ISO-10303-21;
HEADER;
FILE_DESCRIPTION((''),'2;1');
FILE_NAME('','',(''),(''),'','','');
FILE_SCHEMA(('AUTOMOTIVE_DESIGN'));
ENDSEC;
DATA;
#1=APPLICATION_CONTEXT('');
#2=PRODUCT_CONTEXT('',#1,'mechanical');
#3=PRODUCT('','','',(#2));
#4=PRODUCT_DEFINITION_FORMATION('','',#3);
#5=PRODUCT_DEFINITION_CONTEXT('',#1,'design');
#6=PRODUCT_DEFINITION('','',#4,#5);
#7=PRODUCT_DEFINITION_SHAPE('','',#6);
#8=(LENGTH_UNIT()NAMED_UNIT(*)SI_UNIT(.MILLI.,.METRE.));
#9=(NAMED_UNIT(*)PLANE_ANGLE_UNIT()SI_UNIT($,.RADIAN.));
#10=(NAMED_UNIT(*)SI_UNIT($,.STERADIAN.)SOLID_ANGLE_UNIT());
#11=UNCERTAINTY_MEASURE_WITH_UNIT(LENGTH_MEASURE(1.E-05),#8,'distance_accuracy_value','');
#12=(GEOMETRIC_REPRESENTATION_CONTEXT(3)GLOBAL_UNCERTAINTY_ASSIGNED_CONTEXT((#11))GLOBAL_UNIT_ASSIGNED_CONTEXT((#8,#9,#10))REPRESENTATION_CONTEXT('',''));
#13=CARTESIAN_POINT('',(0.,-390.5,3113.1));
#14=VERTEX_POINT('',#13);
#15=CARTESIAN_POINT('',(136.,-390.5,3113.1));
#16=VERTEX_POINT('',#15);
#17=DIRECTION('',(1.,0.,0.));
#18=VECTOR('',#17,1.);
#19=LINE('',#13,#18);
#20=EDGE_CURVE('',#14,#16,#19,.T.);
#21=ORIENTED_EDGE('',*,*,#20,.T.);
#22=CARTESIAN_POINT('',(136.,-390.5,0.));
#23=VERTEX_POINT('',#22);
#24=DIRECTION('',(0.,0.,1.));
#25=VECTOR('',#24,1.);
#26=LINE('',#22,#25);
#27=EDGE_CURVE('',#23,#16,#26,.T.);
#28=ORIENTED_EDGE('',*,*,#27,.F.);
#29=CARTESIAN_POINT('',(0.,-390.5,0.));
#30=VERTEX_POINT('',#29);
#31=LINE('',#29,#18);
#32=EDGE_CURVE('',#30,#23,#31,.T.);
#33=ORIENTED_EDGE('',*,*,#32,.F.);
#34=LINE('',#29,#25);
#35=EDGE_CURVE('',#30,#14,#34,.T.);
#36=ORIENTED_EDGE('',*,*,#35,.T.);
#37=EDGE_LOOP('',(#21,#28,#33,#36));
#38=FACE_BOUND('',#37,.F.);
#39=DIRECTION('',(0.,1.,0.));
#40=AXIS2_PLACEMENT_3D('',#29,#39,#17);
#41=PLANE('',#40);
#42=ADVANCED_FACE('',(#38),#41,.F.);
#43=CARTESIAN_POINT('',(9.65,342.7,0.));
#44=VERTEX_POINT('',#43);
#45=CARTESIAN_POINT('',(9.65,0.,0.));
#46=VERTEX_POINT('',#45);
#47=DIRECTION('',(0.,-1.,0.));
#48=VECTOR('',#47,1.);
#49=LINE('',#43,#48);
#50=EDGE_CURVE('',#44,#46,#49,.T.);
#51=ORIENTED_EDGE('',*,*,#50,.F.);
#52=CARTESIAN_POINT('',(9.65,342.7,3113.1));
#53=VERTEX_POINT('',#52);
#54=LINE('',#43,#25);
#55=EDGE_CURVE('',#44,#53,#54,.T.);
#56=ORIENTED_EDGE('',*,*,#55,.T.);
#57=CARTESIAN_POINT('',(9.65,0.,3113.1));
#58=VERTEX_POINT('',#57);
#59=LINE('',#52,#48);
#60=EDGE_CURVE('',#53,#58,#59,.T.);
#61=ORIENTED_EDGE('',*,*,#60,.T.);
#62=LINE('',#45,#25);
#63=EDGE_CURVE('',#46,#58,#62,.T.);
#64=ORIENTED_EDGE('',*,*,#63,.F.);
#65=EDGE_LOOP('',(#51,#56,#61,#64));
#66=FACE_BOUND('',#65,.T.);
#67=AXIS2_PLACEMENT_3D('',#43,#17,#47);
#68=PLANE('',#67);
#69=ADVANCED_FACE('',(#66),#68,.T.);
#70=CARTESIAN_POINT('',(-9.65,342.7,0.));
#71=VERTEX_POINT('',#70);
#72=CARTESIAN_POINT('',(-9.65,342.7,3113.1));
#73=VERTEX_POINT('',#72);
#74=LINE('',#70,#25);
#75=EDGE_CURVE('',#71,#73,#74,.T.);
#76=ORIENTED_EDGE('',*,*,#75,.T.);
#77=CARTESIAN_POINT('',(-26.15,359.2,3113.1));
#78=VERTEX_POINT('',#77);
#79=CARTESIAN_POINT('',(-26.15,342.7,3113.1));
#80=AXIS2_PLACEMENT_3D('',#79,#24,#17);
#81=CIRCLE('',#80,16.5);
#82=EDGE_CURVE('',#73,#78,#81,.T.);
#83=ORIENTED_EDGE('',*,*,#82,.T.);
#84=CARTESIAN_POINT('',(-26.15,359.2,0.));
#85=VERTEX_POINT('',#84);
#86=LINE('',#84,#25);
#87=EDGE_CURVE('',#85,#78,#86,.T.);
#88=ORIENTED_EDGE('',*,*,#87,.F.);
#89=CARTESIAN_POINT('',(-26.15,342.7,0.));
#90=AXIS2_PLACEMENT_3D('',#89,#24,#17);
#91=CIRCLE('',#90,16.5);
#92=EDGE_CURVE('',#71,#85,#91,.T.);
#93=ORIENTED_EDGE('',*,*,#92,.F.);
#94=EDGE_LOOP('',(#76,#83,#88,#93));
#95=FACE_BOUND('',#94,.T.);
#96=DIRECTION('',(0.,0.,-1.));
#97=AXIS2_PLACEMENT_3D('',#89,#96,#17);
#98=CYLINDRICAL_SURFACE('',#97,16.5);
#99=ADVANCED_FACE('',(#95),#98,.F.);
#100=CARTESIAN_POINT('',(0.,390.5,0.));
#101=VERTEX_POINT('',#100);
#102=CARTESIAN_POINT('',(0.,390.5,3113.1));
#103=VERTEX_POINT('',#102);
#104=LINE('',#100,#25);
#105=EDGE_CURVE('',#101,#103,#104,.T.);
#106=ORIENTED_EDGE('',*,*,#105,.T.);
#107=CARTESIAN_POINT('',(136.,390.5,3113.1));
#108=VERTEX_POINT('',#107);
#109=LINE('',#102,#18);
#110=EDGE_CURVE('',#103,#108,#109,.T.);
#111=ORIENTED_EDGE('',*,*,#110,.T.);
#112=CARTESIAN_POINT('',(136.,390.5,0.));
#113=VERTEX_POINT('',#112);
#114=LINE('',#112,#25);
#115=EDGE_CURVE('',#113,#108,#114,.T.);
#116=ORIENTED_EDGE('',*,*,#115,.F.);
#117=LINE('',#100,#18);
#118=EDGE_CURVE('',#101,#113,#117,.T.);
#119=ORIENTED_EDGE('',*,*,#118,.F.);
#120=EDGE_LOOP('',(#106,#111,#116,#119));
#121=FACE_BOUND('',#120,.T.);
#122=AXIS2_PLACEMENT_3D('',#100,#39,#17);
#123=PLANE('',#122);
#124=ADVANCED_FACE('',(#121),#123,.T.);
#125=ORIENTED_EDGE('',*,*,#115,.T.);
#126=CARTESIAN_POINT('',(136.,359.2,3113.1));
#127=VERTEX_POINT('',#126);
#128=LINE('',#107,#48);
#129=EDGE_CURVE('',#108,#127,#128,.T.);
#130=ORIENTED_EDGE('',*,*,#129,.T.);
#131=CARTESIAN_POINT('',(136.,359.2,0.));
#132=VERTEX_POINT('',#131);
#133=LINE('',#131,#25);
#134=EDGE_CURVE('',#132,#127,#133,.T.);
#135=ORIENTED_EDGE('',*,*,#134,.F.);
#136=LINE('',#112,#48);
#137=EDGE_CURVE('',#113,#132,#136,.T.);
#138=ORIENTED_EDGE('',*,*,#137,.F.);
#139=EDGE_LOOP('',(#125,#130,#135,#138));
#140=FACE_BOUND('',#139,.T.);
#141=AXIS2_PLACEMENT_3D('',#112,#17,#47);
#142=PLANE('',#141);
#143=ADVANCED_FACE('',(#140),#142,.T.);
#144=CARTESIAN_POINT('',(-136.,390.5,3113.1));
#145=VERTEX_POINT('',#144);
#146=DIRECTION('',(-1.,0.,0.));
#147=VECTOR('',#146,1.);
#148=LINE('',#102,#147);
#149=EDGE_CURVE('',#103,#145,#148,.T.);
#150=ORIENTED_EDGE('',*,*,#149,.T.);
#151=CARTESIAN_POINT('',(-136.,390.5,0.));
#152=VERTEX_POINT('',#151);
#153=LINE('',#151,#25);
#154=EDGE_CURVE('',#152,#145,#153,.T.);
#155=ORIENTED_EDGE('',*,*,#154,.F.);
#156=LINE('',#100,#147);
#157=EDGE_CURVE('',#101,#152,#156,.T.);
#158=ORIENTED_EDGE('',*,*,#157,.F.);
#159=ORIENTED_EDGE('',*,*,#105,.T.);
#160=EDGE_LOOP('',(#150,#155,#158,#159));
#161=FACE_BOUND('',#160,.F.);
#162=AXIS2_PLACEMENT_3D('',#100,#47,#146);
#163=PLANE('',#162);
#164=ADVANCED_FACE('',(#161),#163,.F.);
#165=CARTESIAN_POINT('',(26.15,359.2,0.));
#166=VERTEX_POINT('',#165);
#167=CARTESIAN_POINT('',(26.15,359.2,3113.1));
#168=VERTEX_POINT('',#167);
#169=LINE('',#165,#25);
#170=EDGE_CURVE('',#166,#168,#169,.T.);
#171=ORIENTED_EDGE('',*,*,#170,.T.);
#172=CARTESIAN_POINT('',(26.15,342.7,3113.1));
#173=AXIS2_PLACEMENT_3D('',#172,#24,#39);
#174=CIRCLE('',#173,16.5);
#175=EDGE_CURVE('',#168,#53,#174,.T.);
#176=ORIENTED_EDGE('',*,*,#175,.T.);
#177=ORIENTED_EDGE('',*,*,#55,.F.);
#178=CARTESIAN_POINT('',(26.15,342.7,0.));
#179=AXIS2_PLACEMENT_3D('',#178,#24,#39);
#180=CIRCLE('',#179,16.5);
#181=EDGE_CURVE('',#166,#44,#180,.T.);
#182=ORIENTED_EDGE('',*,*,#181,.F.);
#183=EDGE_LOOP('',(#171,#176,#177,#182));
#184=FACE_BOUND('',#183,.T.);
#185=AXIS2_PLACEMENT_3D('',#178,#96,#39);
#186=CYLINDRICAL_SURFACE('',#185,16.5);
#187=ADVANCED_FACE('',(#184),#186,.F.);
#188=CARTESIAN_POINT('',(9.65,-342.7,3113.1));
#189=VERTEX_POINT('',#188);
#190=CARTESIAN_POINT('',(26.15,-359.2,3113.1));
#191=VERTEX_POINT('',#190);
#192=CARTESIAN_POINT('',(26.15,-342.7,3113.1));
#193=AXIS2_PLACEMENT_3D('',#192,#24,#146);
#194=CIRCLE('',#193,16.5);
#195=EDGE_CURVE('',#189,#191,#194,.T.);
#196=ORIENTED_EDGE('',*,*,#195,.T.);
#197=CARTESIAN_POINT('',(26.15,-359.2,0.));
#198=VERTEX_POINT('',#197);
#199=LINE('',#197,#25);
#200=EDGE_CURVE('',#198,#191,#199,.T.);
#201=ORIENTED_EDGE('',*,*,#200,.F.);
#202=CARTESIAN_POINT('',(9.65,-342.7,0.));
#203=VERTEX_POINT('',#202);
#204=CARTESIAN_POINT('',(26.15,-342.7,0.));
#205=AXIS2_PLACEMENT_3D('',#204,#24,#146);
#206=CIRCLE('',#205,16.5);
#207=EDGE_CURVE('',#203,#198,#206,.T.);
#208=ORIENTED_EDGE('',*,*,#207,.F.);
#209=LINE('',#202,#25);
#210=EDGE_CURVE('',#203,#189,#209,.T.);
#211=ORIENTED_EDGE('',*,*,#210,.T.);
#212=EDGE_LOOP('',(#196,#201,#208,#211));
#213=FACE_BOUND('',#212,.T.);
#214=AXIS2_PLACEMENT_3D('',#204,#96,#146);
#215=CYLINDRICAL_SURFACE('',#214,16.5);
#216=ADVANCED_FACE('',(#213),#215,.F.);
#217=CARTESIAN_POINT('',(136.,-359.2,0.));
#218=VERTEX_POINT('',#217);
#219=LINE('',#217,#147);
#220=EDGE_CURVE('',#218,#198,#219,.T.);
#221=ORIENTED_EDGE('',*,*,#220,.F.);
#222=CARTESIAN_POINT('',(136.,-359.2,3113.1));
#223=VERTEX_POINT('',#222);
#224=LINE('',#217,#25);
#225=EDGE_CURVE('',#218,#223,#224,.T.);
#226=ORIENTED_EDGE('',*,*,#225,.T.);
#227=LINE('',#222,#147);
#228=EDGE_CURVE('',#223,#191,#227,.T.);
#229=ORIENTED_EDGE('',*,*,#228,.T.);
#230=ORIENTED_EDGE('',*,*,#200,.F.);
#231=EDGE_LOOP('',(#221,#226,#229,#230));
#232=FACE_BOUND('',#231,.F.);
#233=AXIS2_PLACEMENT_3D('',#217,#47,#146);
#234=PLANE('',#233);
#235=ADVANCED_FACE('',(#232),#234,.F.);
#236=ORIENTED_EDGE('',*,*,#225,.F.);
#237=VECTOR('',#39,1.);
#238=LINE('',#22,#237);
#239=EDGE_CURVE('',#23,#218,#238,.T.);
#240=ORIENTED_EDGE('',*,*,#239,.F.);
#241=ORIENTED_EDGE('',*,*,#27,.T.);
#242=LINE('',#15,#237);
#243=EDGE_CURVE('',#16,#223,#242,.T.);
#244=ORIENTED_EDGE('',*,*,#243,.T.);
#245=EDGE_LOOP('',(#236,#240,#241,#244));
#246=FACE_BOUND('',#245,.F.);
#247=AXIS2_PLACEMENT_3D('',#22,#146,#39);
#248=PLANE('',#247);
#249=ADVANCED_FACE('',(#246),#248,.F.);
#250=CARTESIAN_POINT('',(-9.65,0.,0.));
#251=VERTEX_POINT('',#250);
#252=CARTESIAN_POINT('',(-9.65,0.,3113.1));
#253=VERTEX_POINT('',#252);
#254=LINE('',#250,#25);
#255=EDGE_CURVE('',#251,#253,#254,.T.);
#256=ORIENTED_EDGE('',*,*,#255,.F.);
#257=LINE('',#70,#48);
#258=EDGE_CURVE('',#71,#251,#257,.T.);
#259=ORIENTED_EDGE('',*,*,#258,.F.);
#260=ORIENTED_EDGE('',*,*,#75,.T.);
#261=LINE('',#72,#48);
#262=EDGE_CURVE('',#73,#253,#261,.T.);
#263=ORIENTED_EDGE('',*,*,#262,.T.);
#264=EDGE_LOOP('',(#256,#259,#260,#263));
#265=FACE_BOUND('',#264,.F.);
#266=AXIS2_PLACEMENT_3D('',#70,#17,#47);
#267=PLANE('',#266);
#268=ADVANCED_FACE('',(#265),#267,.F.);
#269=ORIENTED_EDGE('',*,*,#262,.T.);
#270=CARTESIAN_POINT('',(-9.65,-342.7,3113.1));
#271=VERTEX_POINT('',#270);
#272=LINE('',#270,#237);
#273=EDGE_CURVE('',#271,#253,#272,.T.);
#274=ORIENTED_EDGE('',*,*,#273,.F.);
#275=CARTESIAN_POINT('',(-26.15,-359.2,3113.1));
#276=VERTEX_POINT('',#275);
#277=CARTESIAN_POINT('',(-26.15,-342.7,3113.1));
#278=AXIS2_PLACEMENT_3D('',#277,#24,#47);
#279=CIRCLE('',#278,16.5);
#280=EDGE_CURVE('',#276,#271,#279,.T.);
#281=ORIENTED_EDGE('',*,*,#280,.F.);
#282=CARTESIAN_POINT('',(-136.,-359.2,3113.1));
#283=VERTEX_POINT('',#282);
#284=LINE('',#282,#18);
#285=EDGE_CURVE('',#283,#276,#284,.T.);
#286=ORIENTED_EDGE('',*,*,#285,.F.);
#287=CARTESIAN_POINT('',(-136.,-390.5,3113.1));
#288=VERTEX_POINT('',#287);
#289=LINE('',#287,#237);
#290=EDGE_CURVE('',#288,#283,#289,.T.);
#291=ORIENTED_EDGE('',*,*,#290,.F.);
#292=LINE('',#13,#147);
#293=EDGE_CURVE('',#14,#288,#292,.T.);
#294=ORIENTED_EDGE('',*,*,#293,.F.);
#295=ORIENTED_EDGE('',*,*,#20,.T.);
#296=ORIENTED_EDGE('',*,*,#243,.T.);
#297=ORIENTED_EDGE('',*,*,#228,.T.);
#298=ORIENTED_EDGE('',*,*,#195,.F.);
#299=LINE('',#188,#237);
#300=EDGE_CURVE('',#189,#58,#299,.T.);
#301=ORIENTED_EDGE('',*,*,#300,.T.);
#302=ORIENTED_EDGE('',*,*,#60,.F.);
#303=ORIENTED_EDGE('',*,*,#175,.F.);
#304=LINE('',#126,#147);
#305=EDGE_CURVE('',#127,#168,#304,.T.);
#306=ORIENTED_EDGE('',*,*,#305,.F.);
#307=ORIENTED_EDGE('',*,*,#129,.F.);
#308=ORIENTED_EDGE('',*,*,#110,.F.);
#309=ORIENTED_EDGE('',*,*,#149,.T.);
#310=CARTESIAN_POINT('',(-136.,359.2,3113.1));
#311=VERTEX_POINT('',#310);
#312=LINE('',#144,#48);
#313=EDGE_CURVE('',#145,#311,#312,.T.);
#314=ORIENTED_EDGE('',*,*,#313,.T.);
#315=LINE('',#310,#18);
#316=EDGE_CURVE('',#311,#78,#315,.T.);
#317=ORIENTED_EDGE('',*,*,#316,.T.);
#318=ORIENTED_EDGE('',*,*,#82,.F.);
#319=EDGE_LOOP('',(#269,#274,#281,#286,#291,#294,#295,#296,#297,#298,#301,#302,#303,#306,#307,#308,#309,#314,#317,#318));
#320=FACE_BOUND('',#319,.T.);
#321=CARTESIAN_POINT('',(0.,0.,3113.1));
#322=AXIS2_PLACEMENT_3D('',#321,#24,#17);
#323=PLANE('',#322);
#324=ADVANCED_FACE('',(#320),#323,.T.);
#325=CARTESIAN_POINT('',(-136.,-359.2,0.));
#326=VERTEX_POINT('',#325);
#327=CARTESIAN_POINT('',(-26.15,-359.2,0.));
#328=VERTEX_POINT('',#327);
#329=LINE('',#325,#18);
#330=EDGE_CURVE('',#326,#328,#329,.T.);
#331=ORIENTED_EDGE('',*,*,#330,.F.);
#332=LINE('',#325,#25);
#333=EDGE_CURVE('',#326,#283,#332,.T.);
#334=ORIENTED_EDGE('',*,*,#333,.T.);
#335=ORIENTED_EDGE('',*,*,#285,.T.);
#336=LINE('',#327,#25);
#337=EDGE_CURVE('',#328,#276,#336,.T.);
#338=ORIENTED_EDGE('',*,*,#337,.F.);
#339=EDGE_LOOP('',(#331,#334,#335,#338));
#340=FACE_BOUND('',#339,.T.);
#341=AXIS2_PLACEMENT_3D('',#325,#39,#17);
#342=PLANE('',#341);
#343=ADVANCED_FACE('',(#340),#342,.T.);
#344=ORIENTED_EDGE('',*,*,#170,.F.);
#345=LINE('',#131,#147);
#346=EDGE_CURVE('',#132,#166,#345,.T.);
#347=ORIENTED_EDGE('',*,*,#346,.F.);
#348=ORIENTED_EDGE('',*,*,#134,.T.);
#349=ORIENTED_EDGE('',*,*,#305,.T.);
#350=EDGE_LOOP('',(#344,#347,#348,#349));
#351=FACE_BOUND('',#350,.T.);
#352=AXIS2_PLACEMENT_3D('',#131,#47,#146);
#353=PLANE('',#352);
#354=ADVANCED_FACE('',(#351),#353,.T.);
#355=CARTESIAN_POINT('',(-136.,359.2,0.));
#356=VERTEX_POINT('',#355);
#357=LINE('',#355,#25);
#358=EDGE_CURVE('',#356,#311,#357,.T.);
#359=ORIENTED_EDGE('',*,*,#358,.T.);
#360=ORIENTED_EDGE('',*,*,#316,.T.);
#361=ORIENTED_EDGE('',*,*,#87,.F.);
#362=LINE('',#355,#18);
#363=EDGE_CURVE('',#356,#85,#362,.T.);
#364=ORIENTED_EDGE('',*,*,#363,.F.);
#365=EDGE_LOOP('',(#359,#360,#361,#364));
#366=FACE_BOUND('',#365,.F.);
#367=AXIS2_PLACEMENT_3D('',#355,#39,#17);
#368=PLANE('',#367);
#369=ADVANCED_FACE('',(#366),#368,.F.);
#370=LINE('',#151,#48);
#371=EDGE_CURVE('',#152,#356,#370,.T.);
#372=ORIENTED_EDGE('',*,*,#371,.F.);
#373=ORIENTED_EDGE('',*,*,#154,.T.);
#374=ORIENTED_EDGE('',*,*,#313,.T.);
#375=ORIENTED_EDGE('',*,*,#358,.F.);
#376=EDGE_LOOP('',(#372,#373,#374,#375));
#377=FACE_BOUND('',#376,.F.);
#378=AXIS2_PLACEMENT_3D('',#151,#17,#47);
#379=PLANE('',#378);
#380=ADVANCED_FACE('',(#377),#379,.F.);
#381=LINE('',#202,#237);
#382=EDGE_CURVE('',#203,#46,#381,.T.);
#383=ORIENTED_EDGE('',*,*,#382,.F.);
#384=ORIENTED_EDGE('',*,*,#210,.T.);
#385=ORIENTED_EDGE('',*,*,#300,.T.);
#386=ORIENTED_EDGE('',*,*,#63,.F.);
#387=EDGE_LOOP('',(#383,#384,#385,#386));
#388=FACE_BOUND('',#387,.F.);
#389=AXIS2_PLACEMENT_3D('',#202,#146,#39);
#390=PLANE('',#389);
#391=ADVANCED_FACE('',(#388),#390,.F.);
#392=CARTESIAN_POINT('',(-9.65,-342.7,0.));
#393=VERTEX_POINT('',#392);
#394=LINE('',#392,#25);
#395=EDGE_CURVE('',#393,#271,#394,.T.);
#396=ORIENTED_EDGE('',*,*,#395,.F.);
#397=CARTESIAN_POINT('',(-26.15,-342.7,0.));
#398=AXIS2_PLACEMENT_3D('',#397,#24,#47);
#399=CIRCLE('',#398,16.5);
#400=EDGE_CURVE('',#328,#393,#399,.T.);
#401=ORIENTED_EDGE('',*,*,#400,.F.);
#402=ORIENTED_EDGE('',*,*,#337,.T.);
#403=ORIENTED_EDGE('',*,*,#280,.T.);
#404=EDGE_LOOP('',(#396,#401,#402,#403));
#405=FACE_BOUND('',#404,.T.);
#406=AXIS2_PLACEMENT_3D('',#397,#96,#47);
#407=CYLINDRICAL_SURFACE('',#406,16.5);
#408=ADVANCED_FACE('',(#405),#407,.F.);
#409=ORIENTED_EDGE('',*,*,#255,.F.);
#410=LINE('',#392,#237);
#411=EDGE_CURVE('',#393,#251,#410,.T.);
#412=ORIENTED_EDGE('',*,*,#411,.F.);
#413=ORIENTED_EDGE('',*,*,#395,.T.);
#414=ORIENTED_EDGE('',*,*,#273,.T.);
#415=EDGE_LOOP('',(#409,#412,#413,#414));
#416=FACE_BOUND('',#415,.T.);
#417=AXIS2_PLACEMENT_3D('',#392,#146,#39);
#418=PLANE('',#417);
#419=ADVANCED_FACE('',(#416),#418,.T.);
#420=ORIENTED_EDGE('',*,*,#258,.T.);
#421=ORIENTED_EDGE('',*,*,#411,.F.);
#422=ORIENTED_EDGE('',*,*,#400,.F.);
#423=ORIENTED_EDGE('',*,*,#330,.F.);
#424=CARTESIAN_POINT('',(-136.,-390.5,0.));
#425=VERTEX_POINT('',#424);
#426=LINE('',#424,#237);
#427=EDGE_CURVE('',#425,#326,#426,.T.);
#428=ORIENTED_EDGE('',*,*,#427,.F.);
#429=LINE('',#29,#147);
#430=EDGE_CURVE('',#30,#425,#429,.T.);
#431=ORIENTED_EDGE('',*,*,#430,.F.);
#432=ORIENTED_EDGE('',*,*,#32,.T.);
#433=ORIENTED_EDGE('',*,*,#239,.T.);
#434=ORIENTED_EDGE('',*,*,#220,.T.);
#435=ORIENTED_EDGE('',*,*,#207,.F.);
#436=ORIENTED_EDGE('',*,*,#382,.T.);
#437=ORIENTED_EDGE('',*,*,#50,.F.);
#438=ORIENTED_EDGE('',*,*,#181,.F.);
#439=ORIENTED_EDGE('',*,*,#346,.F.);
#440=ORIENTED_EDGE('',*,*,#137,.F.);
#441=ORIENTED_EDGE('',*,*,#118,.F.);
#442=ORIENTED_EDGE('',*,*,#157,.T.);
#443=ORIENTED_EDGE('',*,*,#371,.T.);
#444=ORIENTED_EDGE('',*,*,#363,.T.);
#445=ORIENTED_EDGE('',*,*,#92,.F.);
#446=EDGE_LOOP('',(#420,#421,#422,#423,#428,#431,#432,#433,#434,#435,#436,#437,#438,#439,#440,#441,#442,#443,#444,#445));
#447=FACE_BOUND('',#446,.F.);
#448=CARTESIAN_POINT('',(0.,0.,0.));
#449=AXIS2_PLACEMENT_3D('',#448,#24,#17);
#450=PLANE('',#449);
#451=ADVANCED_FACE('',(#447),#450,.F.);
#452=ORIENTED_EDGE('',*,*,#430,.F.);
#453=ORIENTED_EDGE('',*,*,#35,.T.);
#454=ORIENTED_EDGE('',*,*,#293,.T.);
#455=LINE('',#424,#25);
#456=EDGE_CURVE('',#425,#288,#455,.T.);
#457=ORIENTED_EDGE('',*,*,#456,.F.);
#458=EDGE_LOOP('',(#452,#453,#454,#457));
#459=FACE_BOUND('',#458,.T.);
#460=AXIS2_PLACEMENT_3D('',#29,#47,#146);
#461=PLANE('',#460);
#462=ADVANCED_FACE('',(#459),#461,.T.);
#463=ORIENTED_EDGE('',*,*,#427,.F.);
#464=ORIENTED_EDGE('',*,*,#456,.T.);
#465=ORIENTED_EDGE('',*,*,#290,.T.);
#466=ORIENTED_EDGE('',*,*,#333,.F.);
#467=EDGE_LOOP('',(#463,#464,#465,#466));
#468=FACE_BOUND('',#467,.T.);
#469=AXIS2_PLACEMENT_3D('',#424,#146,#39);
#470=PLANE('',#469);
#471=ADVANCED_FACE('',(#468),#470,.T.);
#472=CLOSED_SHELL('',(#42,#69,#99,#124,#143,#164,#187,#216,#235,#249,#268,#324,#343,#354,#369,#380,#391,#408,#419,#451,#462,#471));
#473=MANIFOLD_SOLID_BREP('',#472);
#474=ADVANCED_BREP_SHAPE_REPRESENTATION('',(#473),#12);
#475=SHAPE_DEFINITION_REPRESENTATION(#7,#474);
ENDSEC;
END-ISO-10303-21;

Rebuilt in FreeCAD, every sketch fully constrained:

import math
import FreeCAD as App
import Part
import Sketcher

V = App.Vector

doc = App.newDocument("Part")
body = doc.addObject("PartDesign::Body", "Body")

sketch1 = body.newObject("Sketcher::SketchObject", "Sketch")
sketch1.AttachmentSupport = (doc.getObject("XY_Plane"), [""])
sketch1.MapMode = "FlatFace"
sketch1.addGeometry([
    Part.LineSegment(V(-136, -359, 0), V(-136, -390, 0)),
    Part.LineSegment(V(-136, -390, 0), V(136, -390, 0)),
    Part.LineSegment(V(136, -390, 0), V(136, -359, 0)),
    Part.LineSegment(V(136, -359, 0), V(26, -359, 0)),
    Part.ArcOfCircle(Part.Circle(V(26, -343, 0), V(0, 0, 1), 16), math.radians(180), math.radians(270)),
    Part.LineSegment(V(10, -343, 0), V(10, 343, 0)),
    Part.ArcOfCircle(Part.Circle(V(26, 343, 0), V(0, 0, 1), 16), math.radians(90), math.radians(180)),
    Part.LineSegment(V(26, 359, 0), V(136, 359, 0)),
    Part.LineSegment(V(136, 359, 0), V(136, 390, 0)),
    Part.LineSegment(V(136, 390, 0), V(-136, 390, 0)),
    Part.LineSegment(V(-136, 390, 0), V(-136, 359, 0)),
    Part.LineSegment(V(-136, 359, 0), V(-26, 359, 0)),
    Part.ArcOfCircle(Part.Circle(V(-26, 343, 0), V(0, 0, 1), 16), math.radians(0), math.radians(90)),
    Part.LineSegment(V(-10, 343, 0), V(-10, -343, 0)),
    Part.ArcOfCircle(Part.Circle(V(-26, -343, 0), V(0, 0, 1), 16), math.radians(-90), math.radians(0)),
    Part.LineSegment(V(-26, -359, 0), V(-136, -359, 0)),
], False)
sketch1.addConstraint([
    Sketcher.Constraint("Coincident", 0, 2, 1, 1),
    Sketcher.Constraint("Coincident", 1, 2, 2, 1),
    Sketcher.Constraint("Coincident", 2, 2, 3, 1),
    Sketcher.Constraint("Tangent", 3, 2, 4, 2),
    Sketcher.Constraint("Tangent", 4, 1, 5, 1),
    Sketcher.Constraint("Tangent", 5, 2, 6, 2),
    Sketcher.Constraint("Tangent", 6, 1, 7, 1),
    Sketcher.Constraint("Coincident", 7, 2, 8, 1),
    Sketcher.Constraint("Coincident", 8, 2, 9, 1),
    Sketcher.Constraint("Coincident", 9, 2, 10, 1),
    Sketcher.Constraint("Coincident", 10, 2, 11, 1),
    Sketcher.Constraint("Tangent", 11, 2, 12, 2),
    Sketcher.Constraint("Tangent", 12, 1, 13, 1),
    Sketcher.Constraint("Tangent", 13, 2, 14, 2),
    Sketcher.Constraint("Tangent", 14, 1, 15, 1),
    Sketcher.Constraint("Coincident", 15, 2, 0, 1),
    Sketcher.Constraint("Vertical", 0),
    Sketcher.Constraint("Horizontal", 1),
    Sketcher.Constraint("Vertical", 2),
    Sketcher.Constraint("Horizontal", 3),
    Sketcher.Constraint("Vertical", 5),
    Sketcher.Constraint("Horizontal", 7),
    Sketcher.Constraint("Vertical", 8),
    Sketcher.Constraint("Horizontal", 9),
    Sketcher.Constraint("Vertical", 10),
    Sketcher.Constraint("Horizontal", 11),
    Sketcher.Constraint("Vertical", 13),
    Sketcher.Constraint("Horizontal", 15),
    Sketcher.Constraint("Equal", 4, 6),
    Sketcher.Constraint("Equal", 6, 12),
    Sketcher.Constraint("Equal", 12, 14),
    Sketcher.Constraint("Symmetric", 4, 3, 12, 3, -1, 1),
    Sketcher.Constraint("Symmetric", 0, 2, 8, 2, -1, 1),
    Sketcher.Constraint("Symmetric", 7, 2, 10, 2, -2),
    Sketcher.Constraint("Symmetric", 2, 2, 15, 2, -2),
    Sketcher.Constraint("Radius", 4, 16.5),
    Sketcher.Constraint("DistanceY", 0, 2, 0, 1, 31.3),
    Sketcher.Constraint("DistanceX", 0, 2, -1, 1, 136.0),
    Sketcher.Constraint("DistanceY", 0, 2, -1, 1, 390.5),
    Sketcher.Constraint("DistanceX", -1, 1, 4, 1, 9.65),
])
pad1 = body.newObject("PartDesign::Pad", "Pad")
pad1.Profile = sketch1
pad1.Length = 3113.1

doc.recompute()
